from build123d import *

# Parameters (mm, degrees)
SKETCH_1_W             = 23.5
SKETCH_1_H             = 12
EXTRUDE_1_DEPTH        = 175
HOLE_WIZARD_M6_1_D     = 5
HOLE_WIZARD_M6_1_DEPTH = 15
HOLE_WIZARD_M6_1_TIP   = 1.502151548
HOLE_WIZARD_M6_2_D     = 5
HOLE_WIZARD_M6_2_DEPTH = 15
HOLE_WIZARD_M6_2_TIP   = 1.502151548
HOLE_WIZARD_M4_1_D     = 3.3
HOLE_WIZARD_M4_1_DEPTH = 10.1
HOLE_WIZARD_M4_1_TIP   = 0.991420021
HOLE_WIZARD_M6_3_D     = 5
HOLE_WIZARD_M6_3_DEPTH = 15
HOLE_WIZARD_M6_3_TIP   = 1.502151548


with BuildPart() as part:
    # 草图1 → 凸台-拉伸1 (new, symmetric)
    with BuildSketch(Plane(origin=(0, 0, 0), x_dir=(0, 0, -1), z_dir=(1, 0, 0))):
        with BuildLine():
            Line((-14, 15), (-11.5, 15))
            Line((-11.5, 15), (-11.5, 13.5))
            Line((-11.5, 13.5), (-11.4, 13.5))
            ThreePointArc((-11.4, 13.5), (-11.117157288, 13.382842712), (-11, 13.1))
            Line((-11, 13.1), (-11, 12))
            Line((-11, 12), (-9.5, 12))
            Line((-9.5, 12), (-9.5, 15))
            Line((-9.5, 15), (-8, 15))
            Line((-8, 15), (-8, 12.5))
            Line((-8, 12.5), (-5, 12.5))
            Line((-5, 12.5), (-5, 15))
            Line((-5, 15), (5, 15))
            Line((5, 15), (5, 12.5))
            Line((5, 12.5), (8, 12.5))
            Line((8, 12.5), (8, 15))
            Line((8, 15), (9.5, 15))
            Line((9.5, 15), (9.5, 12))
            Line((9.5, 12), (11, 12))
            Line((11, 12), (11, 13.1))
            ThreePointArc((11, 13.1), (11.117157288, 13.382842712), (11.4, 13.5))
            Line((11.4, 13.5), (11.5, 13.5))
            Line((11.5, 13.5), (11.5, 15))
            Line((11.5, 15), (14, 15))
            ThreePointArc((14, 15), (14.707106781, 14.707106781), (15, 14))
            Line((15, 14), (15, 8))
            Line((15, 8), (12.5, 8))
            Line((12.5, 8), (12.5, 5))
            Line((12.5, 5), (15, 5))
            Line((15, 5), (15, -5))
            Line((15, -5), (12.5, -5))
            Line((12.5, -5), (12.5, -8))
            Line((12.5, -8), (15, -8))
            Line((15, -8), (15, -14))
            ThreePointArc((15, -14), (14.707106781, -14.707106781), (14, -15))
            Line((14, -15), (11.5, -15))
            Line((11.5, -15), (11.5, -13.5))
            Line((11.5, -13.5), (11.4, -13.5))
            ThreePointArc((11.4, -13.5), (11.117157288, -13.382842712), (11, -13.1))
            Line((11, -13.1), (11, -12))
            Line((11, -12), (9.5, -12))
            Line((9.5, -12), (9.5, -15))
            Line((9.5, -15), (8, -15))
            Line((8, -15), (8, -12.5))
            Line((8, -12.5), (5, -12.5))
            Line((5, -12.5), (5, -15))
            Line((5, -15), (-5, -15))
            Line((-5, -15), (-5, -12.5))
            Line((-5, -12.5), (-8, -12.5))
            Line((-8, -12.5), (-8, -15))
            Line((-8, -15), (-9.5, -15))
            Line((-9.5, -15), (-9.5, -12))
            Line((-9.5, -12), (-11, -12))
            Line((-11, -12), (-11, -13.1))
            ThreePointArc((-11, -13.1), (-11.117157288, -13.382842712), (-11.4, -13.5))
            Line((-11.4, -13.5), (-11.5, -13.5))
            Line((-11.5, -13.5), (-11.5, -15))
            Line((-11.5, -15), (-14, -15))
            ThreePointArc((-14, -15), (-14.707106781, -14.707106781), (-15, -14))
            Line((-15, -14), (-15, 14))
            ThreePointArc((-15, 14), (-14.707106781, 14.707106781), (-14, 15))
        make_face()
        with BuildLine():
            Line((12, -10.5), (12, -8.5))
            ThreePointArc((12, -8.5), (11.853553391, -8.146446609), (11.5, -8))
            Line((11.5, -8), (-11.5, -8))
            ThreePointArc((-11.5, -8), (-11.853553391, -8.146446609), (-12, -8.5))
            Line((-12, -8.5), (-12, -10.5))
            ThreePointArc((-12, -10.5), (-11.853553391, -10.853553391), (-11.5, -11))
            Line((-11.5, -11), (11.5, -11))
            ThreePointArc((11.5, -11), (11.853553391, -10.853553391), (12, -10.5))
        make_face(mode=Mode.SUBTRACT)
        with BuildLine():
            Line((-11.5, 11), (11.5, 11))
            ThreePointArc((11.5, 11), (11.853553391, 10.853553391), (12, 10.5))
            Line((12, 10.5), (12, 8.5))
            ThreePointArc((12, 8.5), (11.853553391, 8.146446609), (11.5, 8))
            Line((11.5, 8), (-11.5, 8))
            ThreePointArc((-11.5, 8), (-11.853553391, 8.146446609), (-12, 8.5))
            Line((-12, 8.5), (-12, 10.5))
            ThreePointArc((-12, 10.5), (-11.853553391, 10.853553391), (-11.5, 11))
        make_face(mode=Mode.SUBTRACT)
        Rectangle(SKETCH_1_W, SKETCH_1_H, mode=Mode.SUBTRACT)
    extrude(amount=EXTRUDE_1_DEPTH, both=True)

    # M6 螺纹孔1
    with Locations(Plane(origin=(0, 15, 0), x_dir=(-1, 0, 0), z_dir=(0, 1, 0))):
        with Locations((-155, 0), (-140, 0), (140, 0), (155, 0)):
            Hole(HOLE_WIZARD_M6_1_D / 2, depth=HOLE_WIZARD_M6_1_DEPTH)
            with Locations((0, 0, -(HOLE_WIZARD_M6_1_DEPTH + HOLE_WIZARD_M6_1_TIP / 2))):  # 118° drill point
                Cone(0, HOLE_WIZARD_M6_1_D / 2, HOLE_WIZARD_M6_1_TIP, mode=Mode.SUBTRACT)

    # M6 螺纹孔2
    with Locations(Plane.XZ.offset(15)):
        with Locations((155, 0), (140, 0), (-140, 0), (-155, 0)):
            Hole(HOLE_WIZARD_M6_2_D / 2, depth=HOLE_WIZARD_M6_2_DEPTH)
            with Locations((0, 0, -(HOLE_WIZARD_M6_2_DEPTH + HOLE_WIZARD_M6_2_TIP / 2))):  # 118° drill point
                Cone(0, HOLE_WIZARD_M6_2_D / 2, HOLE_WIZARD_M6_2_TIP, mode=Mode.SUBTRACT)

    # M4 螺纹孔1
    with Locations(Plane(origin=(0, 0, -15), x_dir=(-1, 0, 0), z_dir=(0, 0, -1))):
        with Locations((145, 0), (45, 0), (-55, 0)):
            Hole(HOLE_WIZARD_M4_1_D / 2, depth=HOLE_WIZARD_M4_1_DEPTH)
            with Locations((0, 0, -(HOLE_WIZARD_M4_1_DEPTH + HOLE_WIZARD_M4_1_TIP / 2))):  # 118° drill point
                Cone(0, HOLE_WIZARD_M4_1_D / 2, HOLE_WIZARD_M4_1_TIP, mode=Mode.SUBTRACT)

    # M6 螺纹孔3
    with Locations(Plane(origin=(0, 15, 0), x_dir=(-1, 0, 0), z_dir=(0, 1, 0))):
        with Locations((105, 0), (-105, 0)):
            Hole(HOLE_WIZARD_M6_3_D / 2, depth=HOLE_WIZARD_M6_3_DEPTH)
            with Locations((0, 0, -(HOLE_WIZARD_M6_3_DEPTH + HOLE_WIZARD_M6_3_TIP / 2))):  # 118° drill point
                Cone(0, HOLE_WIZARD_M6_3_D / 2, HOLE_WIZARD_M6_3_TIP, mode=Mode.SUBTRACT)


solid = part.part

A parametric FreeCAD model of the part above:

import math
import FreeCAD as App
import Part
import Sketcher


def add_polygon(sketch, points):
    """Adds a closed chain of lines whose ends are joined by coincident constraints."""
    first, n = sketch.GeometryCount, len(points)
    for a, b in zip(points, points[1:] + points[:1]):
        sketch.addGeometry(Part.LineSegment(App.Vector(*a, 0), App.Vector(*b, 0)), False)
    for i in range(n):
        sketch.addConstraint(Sketcher.Constraint("Coincident", first + i, 2, first + (i + 1) % n, 1))

doc = App.newDocument("Part")
body = doc.addObject("PartDesign::Body", "Body")

sketch1 = body.newObject("Sketcher::SketchObject", "Sketch")
sketch1.AttachmentSupport = (doc.getObject("YZ_Plane"), [""])
sketch1.MapMode = "FlatFace"
sketch1.addGeometry(Part.LineSegment(App.Vector(15, 11.5, 0), App.Vector(15, 14, 0)), False)
sketch1.addGeometry(Part.ArcOfCircle(Part.Circle(App.Vector(14, 14, 0), App.Vector(0, 0, 1), 1), math.radians(0), math.radians(90)), False)
sketch1.addGeometry(Part.LineSegment(App.Vector(14, 15, 0), App.Vector(-14, 15, 0)), False)
sketch1.addGeometry(Part.ArcOfCircle(Part.Circle(App.Vector(-14, 14, 0), App.Vector(0, 0, 1), 1), math.radians(90), math.radians(180)), False)
sketch1.addGeometry(Part.LineSegment(App.Vector(-15, 14, 0), App.Vector(-15, 11.5, 0)), False)
sketch1.addGeometry(Part.LineSegment(App.Vector(-15, 11.5, 0), App.Vector(-13.5, 11.5, 0)), False)
sketch1.addGeometry(Part.LineSegment(App.Vector(-13.5, 11.5, 0), App.Vector(-13.5, 11.4, 0)), False)
sketch1.addGeometry(Part.ArcOfCircle(Part.Circle(App.Vector(-13.1, 11.4, 0), App.Vector(0, 0, 1), 0.4), math.radians(-180), math.radians(-90)), False)
sketch1.addGeometry(Part.LineSegment(App.Vector(-13.1, 11, 0), App.Vector(-12, 11, 0)), False)
sketch1.addGeometry(Part.LineSegment(App.Vector(-12, 11, 0), App.Vector(-12, 9.5, 0)), False)
sketch1.addGeometry(Part.LineSegment(App.Vector(-12, 9.5, 0), App.Vector(-15, 9.5, 0)), False)
sketch1.addGeometry(Part.LineSegment(App.Vector(-15, 9.5, 0), App.Vector(-15, 8, 0)), False)
sketch1.addGeometry(Part.LineSegment(App.Vector(-15, 8, 0), App.Vector(-12.5, 8, 0)), False)
sketch1.addGeometry(Part.LineSegment(App.Vector(-12.5, 8, 0), App.Vector(-12.5, 5, 0)), False)
sketch1.addGeometry(Part.LineSegment(App.Vector(-12.5, 5, 0), App.Vector(-15, 5, 0)), False)
sketch1.addGeometry(Part.LineSegment(App.Vector(-15, 5, 0), App.Vector(-15, -5, 0)), False)
sketch1.addGeometry(Part.LineSegment(App.Vector(-15, -5, 0), App.Vector(-12.5, -5, 0)), False)
sketch1.addGeometry(Part.LineSegment(App.Vector(-12.5, -5, 0), App.Vector(-12.5, -8, 0)), False)
sketch1.addGeometry(Part.LineSegment(App.Vector(-12.5, -8, 0), App.Vector(-15, -8, 0)), False)
sketch1.addGeometry(Part.LineSegment(App.Vector(-15, -8, 0), App.Vector(-15, -9.5, 0)), False)
sketch1.addGeometry(Part.LineSegment(App.Vector(-15, -9.5, 0), App.Vector(-12, -9.5, 0)), False)
sketch1.addGeometry(Part.LineSegment(App.Vector(-12, -9.5, 0), App.Vector(-12, -11, 0)), False)
sketch1.addGeometry(Part.LineSegment(App.Vector(-12, -11, 0), App.Vector(-13.1, -11, 0)), False)
sketch1.addGeometry(Part.ArcOfCircle(Part.Circle(App.Vector(-13.1, -11.4, 0), App.Vector(0, 0, 1), 0.4), math.radians(90), math.radians(180)), False)
sketch1.addGeometry(Part.LineSegment(App.Vector(-13.5, -11.4, 0), App.Vector(-13.5, -11.5, 0)), False)
sketch1.addGeometry(Part.LineSegment(App.Vector(-13.5, -11.5, 0), App.Vector(-15, -11.5, 0)), False)
sketch1.addGeometry(Part.LineSegment(App.Vector(-15, -11.5, 0), App.Vector(-15, -14, 0)), False)
sketch1.addGeometry(Part.ArcOfCircle(Part.Circle(App.Vector(-14, -14, 0), App.Vector(0, 0, 1), 1), math.radians(-180), math.radians(-90)), False)
sketch1.addGeometry(Part.LineSegment(App.Vector(-14, -15, 0), App.Vector(-8, -15, 0)), False)
sketch1.addGeometry(Part.LineSegment(App.Vector(-8, -15, 0), App.Vector(-8, -12.5, 0)), False)
sketch1.addGeometry(Part.LineSegment(App.Vector(-8, -12.5, 0), App.Vector(-5, -12.5, 0)), False)
sketch1.addGeometry(Part.LineSegment(App.Vector(-5, -12.5, 0), App.Vector(-5, -15, 0)), False)
sketch1.addGeometry(Part.LineSegment(App.Vector(-5, -15, 0), App.Vector(5, -15, 0)), False)
sketch1.addGeometry(Part.LineSegment(App.Vector(5, -15, 0), App.Vector(5, -12.5, 0)), False)
sketch1.addGeometry(Part.LineSegment(App.Vector(5, -12.5, 0), App.Vector(8, -12.5, 0)), False)
sketch1.addGeometry(Part.LineSegment(App.Vector(8, -12.5, 0), App.Vector(8, -15, 0)), False)
sketch1.addGeometry(Part.LineSegment(App.Vector(8, -15, 0), App.Vector(14, -15, 0)), False)
sketch1.addGeometry(Part.ArcOfCircle(Part.Circle(App.Vector(14, -14, 0), App.Vector(0, 0, 1), 1), math.radians(-90), math.radians(0)), False)
sketch1.addGeometry(Part.LineSegment(App.Vector(15, -14, 0), App.Vector(15, -11.5, 0)), False)
sketch1.addGeometry(Part.LineSegment(App.Vector(15, -11.5, 0), App.Vector(13.5, -11.5, 0)), False)
sketch1.addGeometry(Part.LineSegment(App.Vector(13.5, -11.5, 0), App.Vector(13.5, -11.4, 0)), False)
sketch1.addGeometry(Part.ArcOfCircle(Part.Circle(App.Vector(13.1, -11.4, 0), App.Vector(0, 0, 1), 0.4), math.radians(0), math.radians(90)), False)
sketch1.addGeometry(Part.LineSegment(App.Vector(13.1, -11, 0), App.Vector(12, -11, 0)), False)
sketch1.addGeometry(Part.LineSegment(App.Vector(12, -11, 0), App.Vector(12, -9.5, 0)), False)
sketch1.addGeometry(Part.LineSegment(App.Vector(12, -9.5, 0), App.Vector(15, -9.5, 0)), False)
sketch1.addGeometry(Part.LineSegment(App.Vector(15, -9.5, 0), App.Vector(15, -8, 0)), False)
sketch1.addGeometry(Part.LineSegment(App.Vector(15, -8, 0), App.Vector(12.5, -8, 0)), False)
sketch1.addGeometry(Part.LineSegment(App.Vector(12.5, -8, 0), App.Vector(12.5, -5, 0)), False)
sketch1.addGeometry(Part.LineSegment(App.Vector(12.5, -5, 0), App.Vector(15, -5, 0)), False)
sketch1.addGeometry(Part.LineSegment(App.Vector(15, -5, 0), App.Vector(15, 5, 0)), False)
sketch1.addGeometry(Part.LineSegment(App.Vector(15, 5, 0), App.Vector(12.5, 5, 0)), False)
sketch1.addGeometry(Part.LineSegment(App.Vector(12.5, 5, 0), App.Vector(12.5, 8, 0)), False)
sketch1.addGeometry(Part.LineSegment(App.Vector(12.5, 8, 0), App.Vector(15, 8, 0)), False)
sketch1.addGeometry(Part.LineSegment(App.Vector(15, 8, 0), App.Vector(15, 9.5, 0)), False)
sketch1.addGeometry(Part.LineSegment(App.Vector(15, 9.5, 0), App.Vector(12, 9.5, 0)), False)
sketch1.addGeometry(Part.LineSegment(App.Vector(12, 9.5, 0), App.Vector(12, 11, 0)), False)
sketch1.addGeometry(Part.LineSegment(App.Vector(12, 11, 0), App.Vector(13.1, 11, 0)), False)
sketch1.addGeometry(Part.ArcOfCircle(Part.Circle(App.Vector(13.1, 11.4, 0), App.Vector(0, 0, 1), 0.4), math.radians(-90), math.radians(0)), False)
sketch1.addGeometry(Part.LineSegment(App.Vector(13.5, 11.4, 0), App.Vector(13.5, 11.5, 0)), False)
sketch1.addGeometry(Part.LineSegment(App.Vector(13.5, 11.5, 0), App.Vector(15, 11.5, 0)), False)
sketch1.addGeometry(Part.ArcOfCircle(Part.Circle(App.Vector(-10.5, -11.5, 0), App.Vector(0, 0, 1), 0.5), math.radians(180), math.radians(270)), False)
sketch1.addGeometry(Part.LineSegment(App.Vector(-11, -11.5, 0), App.Vector(-11, 11.5, 0)), False)
sketch1.addGeometry(Part.ArcOfCircle(Part.Circle(App.Vector(-10.5, 11.5, 0), App.Vector(0, 0, 1), 0.5), math.radians(90), math.radians(180)), False)
sketch1.addGeometry(Part.LineSegment(App.Vector(-10.5, 12, 0), App.Vector(-8.5, 12, 0)), False)
sketch1.addGeometry(Part.ArcOfCircle(Part.Circle(App.Vector(-8.5, 11.5, 0), App.Vector(0, 0, 1), 0.5), math.radians(0), math.radians(90)), False)
sketch1.addGeometry(Part.LineSegment(App.Vector(-8, 11.5, 0), App.Vector(-8, -11.5, 0)), False)
sketch1.addGeometry(Part.ArcOfCircle(Part.Circle(App.Vector(-8.5, -11.5, 0), App.Vector(0, 0, 1), 0.5), math.radians(-90), math.radians(0)), False)
sketch1.addGeometry(Part.LineSegment(App.Vector(-8.5, -12, 0), App.Vector(-10.5, -12, 0)), False)
add_polygon(sketch1, [(-6, 11.75), (6, 11.75), (6, -11.75), (-6, -11.75)])
sketch1.addGeometry(Part.LineSegment(App.Vector(11, 11.5, 0), App.Vector(11, -11.5, 0)), False)
sketch1.addGeometry(Part.ArcOfCircle(Part.Circle(App.Vector(10.5, -11.5, 0), App.Vector(0, 0, 1), 0.5), math.radians(-90), math.radians(0)), False)
sketch1.addGeometry(Part.LineSegment(App.Vector(10.5, -12, 0), App.Vector(8.5, -12, 0)), False)
sketch1.addGeometry(Part.ArcOfCircle(Part.Circle(App.Vector(8.5, -11.5, 0), App.Vector(0, 0, 1), 0.5), math.radians(180), math.radians(270)), False)
sketch1.addGeometry(Part.LineSegment(App.Vector(8, -11.5, 0), App.Vector(8, 11.5, 0)), False)
sketch1.addGeometry(Part.ArcOfCircle(Part.Circle(App.Vector(8.5, 11.5, 0), App.Vector(0, 0, 1), 0.5), math.radians(90), math.radians(180)), False)
sketch1.addGeometry(Part.LineSegment(App.Vector(8.5, 12, 0), App.Vector(10.5, 12, 0)), False)
sketch1.addGeometry(Part.ArcOfCircle(Part.Circle(App.Vector(10.5, 11.5, 0), App.Vector(0, 0, 1), 0.5), math.radians(0), math.radians(90)), False)
sketch1.addConstraint(Sketcher.Constraint("Tangent", 0, 2, 1, 1))
sketch1.addConstraint(Sketcher.Constraint("Tangent", 1, 2, 2, 1))
sketch1.addConstraint(Sketcher.Constraint("Tangent", 2, 2, 3, 1))
sketch1.addConstraint(Sketcher.Constraint("Tangent", 3, 2, 4, 1))
sketch1.addConstraint(Sketcher.Constraint("Coincident", 4, 2, 5, 1))
sketch1.addConstraint(Sketcher.Constraint("Coincident", 5, 2, 6, 1))
sketch1.addConstraint(Sketcher.Constraint("Tangent", 6, 2, 7, 1))
sketch1.addConstraint(Sketcher.Constraint("Tangent", 7, 2, 8, 1))
sketch1.addConstraint(Sketcher.Constraint("Coincident", 8, 2, 9, 1))
sketch1.addConstraint(Sketcher.Constraint("Coincident", 9, 2, 10, 1))
sketch1.addConstraint(Sketcher.Constraint("Coincident", 10, 2, 11, 1))
sketch1.addConstraint(Sketcher.Constraint("Coincident", 11, 2, 12, 1))
sketch1.addConstraint(Sketcher.Constraint("Coincident", 12, 2, 13, 1))
sketch1.addConstraint(Sketcher.Constraint("Coincident", 13, 2, 14, 1))
sketch1.addConstraint(Sketcher.Constraint("Coincident", 14, 2, 15, 1))
sketch1.addConstraint(Sketcher.Constraint("Coincident", 15, 2, 16, 1))
sketch1.addConstraint(Sketcher.Constraint("Coincident", 16, 2, 17, 1))
sketch1.addConstraint(Sketcher.Constraint("Coincident", 17, 2, 18, 1))
sketch1.addConstraint(Sketcher.Constraint("Coincident", 18, 2, 19, 1))
sketch1.addConstraint(Sketcher.Constraint("Coincident", 19, 2, 20, 1))
sketch1.addConstraint(Sketcher.Constraint("Coincident", 20, 2, 21, 1))
sketch1.addConstraint(Sketcher.Constraint("Coincident", 21, 2, 22, 1))
sketch1.addConstraint(Sketcher.Constraint("Tangent", 22, 2, 23, 1))
sketch1.addConstraint(Sketcher.Constraint("Tangent", 23, 2, 24, 1))
sketch1.addConstraint(Sketcher.Constraint("Coincident", 24, 2, 25, 1))
sketch1.addConstraint(Sketcher.Constraint("Coincident", 25, 2, 26, 1))
sketch1.addConstraint(Sketcher.Constraint("Tangent", 26, 2, 27, 1))
sketch1.addConstraint(Sketcher.Constraint("Tangent", 27, 2, 28, 1))
sketch1.addConstraint(Sketcher.Constraint("Coincident", 28, 2, 29, 1))
sketch1.addConstraint(Sketcher.Constraint("Coincident", 29, 2, 30, 1))
sketch1.addConstraint(Sketcher.Constraint("Coincident", 30, 2, 31, 1))
sketch1.addConstraint(Sketcher.Constraint("Coincident", 31, 2, 32, 1))
sketch1.addConstraint(Sketcher.Constraint("Coincident", 32, 2, 33, 1))
sketch1.addConstraint(Sketcher.Constraint("Coincident", 33, 2, 34, 1))
sketch1.addConstraint(Sketcher.Constraint("Coincident", 34, 2, 35, 1))
sketch1.addConstraint(Sketcher.Constraint("Coincident", 35, 2, 36, 1))
sketch1.addConstraint(Sketcher.Constraint("Tangent", 36, 2, 37, 1))
sketch1.addConstraint(Sketcher.Constraint("Tangent", 37, 2, 38, 1))
sketch1.addConstraint(Sketcher.Constraint("Coincident", 38, 2, 39, 1))
sketch1.addConstraint(Sketcher.Constraint("Coincident", 39, 2, 40, 1))
sketch1.addConstraint(Sketcher.Constraint("Tangent", 40, 2, 41, 1))
sketch1.addConstraint(Sketcher.Constraint("Tangent", 41, 2, 42, 1))
sketch1.addConstraint(Sketcher.Constraint("Coincident", 42, 2, 43, 1))
sketch1.addConstraint(Sketcher.Constraint("Coincident", 43, 2, 44, 1))
sketch1.addConstraint(Sketcher.Constraint("Coincident", 44, 2, 45, 1))
sketch1.addConstraint(Sketcher.Constraint("Coincident", 45, 2, 46, 1))
sketch1.addConstraint(Sketcher.Constraint("Coincident", 46, 2, 47, 1))
sketch1.addConstraint(Sketcher.Constraint("Coincident", 47, 2, 48, 1))
sketch1.addConstraint(Sketcher.Constraint("Coincident", 48, 2, 49, 1))
sketch1.addConstraint(Sketcher.Constraint("Coincident", 49, 2, 50, 1))
sketch1.addConstraint(Sketcher.Constraint("Coincident", 50, 2, 51, 1))
sketch1.addConstraint(Sketcher.Constraint("Coincident", 51, 2, 52, 1))
sketch1.addConstraint(Sketcher.Constraint("Coincident", 52, 2, 53, 1))
sketch1.addConstraint(Sketcher.Constraint("Coincident", 53, 2, 54, 1))
sketch1.addConstraint(Sketcher.Constraint("Coincident", 54, 2, 55, 1))
sketch1.addConstraint(Sketcher.Constraint("Coincident", 55, 2, 56, 1))
sketch1.addConstraint(Sketcher.Constraint("Tangent", 56, 2, 57, 1))
sketch1.addConstraint(Sketcher.Constraint("Tangent", 57, 2, 58, 1))
sketch1.addConstraint(Sketcher.Constraint("Coincident", 58, 2, 59, 1))
sketch1.addConstraint(Sketcher.Constraint("Coincident", 59, 2, 0, 1))
sketch1.addConstraint(Sketcher.Constraint("Tangent", 60, 1, 61, 1))
sketch1.addConstraint(Sketcher.Constraint("Tangent", 61, 2, 62, 2))
sketch1.addConstraint(Sketcher.Constraint("Tangent", 62, 1, 63, 1))
sketch1.addConstraint(Sketcher.Constraint("Tangent", 63, 2, 64, 2))
sketch1.addConstraint(Sketcher.Constraint("Tangent", 64, 1, 65, 1))
sketch1.addConstraint(Sketcher.Constraint("Tangent", 65, 2, 66, 2))
sketch1.addConstraint(Sketcher.Constraint("Tangent", 66, 1, 67, 1))
sketch1.addConstraint(Sketcher.Constraint("Tangent", 67, 2, 60, 2))
sketch1.addConstraint(Sketcher.Constraint("Tangent", 72, 2, 73, 2))
sketch1.addConstraint(Sketcher.Constraint("Tangent", 73, 1, 74, 1))
sketch1.addConstraint(Sketcher.Constraint("Tangent", 74, 2, 75, 2))
sketch1.addConstraint(Sketcher.Constraint("Tangent", 75, 1, 76, 1))
sketch1.addConstraint(Sketcher.Constraint("Tangent", 76, 2, 77, 2))
sketch1.addConstraint(Sketcher.Constraint("Tangent", 77, 1, 78, 1))
sketch1.addConstraint(Sketcher.Constraint("Tangent", 78, 2, 79, 2))
sketch1.addConstraint(Sketcher.Constraint("Tangent", 79, 1, 72, 1))
sketch1.addConstraint(Sketcher.Constraint("Vertical", 0))
sketch1.addConstraint(Sketcher.Constraint("Horizontal", 2))
sketch1.addConstraint(Sketcher.Constraint("Vertical", 4))
sketch1.addConstraint(Sketcher.Constraint("Horizontal", 5))
sketch1.addConstraint(Sketcher.Constraint("Vertical", 6))
sketch1.addConstraint(Sketcher.Constraint("Horizontal", 8))
sketch1.addConstraint(Sketcher.Constraint("Vertical", 9))
sketch1.addConstraint(Sketcher.Constraint("Horizontal", 10))
sketch1.addConstraint(Sketcher.Constraint("Vertical", 11))
sketch1.addConstraint(Sketcher.Constraint("Horizontal", 12))
sketch1.addConstraint(Sketcher.Constraint("Vertical", 13))
sketch1.addConstraint(Sketcher.Constraint("Horizontal", 14))
sketch1.addConstraint(Sketcher.Constraint("Vertical", 15))
sketch1.addConstraint(Sketcher.Constraint("Horizontal", 16))
sketch1.addConstraint(Sketcher.Constraint("Vertical", 17))
sketch1.addConstraint(Sketcher.Constraint("Horizontal", 18))
sketch1.addConstraint(Sketcher.Constraint("Vertical", 19))
sketch1.addConstraint(Sketcher.Constraint("Horizontal", 20))
sketch1.addConstraint(Sketcher.Constraint("Vertical", 21))
sketch1.addConstraint(Sketcher.Constraint("Horizontal", 22))
sketch1.addConstraint(Sketcher.Constraint("Vertical", 24))
sketch1.addConstraint(Sketcher.Constraint("Horizontal", 25))
sketch1.addConstraint(Sketcher.Constraint("Vertical", 26))
sketch1.addConstraint(Sketcher.Constraint("Horizontal", 28))
sketch1.addConstraint(Sketcher.Constraint("Vertical", 29))
sketch1.addConstraint(Sketcher.Constraint("Horizontal", 30))
sketch1.addConstraint(Sketcher.Constraint("Vertical", 31))
sketch1.addConstraint(Sketcher.Constraint("Horizontal", 32))
sketch1.addConstraint(Sketcher.Constraint("Vertical", 33))
sketch1.addConstraint(Sketcher.Constraint("Horizontal", 34))
sketch1.addConstraint(Sketcher.Constraint("Vertical", 35))
sketch1.addConstraint(Sketcher.Constraint("Horizontal", 36))
sketch1.addConstraint(Sketcher.Constraint("Vertical", 38))
sketch1.addConstraint(Sketcher.Constraint("Horizontal", 39))
sketch1.addConstraint(Sketcher.Constraint("Vertical", 40))
sketch1.addConstraint(Sketcher.Constraint("Horizontal", 42))
sketch1.addConstraint(Sketcher.Constraint("Vertical", 43))
sketch1.addConstraint(Sketcher.Constraint("Horizontal", 44))
sketch1.addConstraint(Sketcher.Constraint("Vertical", 45))
sketch1.addConstraint(Sketcher.Constraint("Horizontal", 46))
sketch1.addConstraint(Sketcher.Constraint("Vertical", 47))
sketch1.addConstraint(Sketcher.Constraint("Horizontal", 48))
sketch1.addConstraint(Sketcher.Constraint("Vertical", 49))
sketch1.addConstraint(Sketcher.Constraint("Horizontal", 50))
sketch1.addConstraint(Sketcher.Constraint("Vertical", 51))
sketch1.addConstraint(Sketcher.Constraint("Horizontal", 52))
sketch1.addConstraint(Sketcher.Constraint("Vertical", 53))
sketch1.addConstraint(Sketcher.Constraint("Horizontal", 54))
sketch1.addConstraint(Sketcher.Constraint("Vertical", 55))
sketch1.addConstraint(Sketcher.Constraint("Horizontal", 56))
sketch1.addConstraint(Sketcher.Constraint("Vertical", 58))
sketch1.addConstraint(Sketcher.Constraint("Horizontal", 59))
sketch1.addConstraint(Sketcher.Constraint("Vertical", 61))
sketch1.addConstraint(Sketcher.Constraint("Horizontal", 63))
sketch1.addConstraint(Sketcher.Constraint("Vertical", 65))
sketch1.addConstraint(Sketcher.Constraint("Horizontal", 67))
sketch1.addConstraint(Sketcher.Constraint("Horizontal", 68))
sketch1.addConstraint(Sketcher.Constraint("Vertical", 69))
sketch1.addConstraint(Sketcher.Constraint("Horizontal", 70))
sketch1.addConstraint(Sketcher.Constraint("Vertical", 71))
sketch1.addConstraint(Sketcher.Constraint("Vertical", 72))
sketch1.addConstraint(Sketcher.Constraint("Horizontal", 74))
sketch1.addConstraint(Sketcher.Constraint("Vertical", 76))
sketch1.addConstraint(Sketcher.Constraint("Horizontal", 78))
sketch1.addConstraint(Sketcher.Constraint("Equal", 1, 3))
sketch1.addConstraint(Sketcher.Constraint("Equal", 7, 23))
sketch1.addConstraint(Sketcher.Constraint("Equal", 3, 27))
sketch1.addConstraint(Sketcher.Constraint("Equal", 27, 37))
sketch1.addConstraint(Sketcher.Constraint("Equal", 23, 41))
sketch1.addConstraint(Sketcher.Constraint("Equal", 41, 57))
sketch1.addConstraint(Sketcher.Constraint("Equal", 60, 62))
sketch1.addConstraint(Sketcher.Constraint("Equal", 62, 64))
sketch1.addConstraint(Sketcher.Constraint("Equal", 64, 66))
sketch1.addConstraint(Sketcher.Constraint("Equal", 66, 73))
sketch1.addConstraint(Sketcher.Constraint("Equal", 73, 75))
sketch1.addConstraint(Sketcher.Constraint("Equal", 75, 77))
sketch1.addConstraint(Sketcher.Constraint("Equal", 77, 79))
sketch1.addConstraint(Sketcher.Constraint("Symmetric", 1, 3, 27, 3, -1, 1))
sketch1.addConstraint(Sketcher.Constraint("Symmetric", 3, 3, 37, 3, -1, 1))
sketch1.addConstraint(Sketcher.Constraint("Symmetric", 7, 3, 41, 3, -1, 1))
sketch1.addConstraint(Sketcher.Constraint("Symmetric", 23, 3, 57, 3, -1, 1))
sketch1.addConstraint(Sketcher.Constraint("Symmetric", 62, 3, 73, 3, -1, 1))
sketch1.addConstraint(Sketcher.Constraint("Symmetric", 66, 3, 77, 3, -1, 1))
sketch1.addConstraint(Sketcher.Constraint("Symmetric", 9, 2, 43, 2, -1, 1))
sketch1.addConstraint(Sketcher.Constraint("Symmetric", 11, 2, 45, 2, -1, 1))
sketch1.addConstraint(Sketcher.Constraint("Symmetric", 13, 2, 47, 2, -1, 1))
sketch1.addConstraint(Sketcher.Constraint("Symmetric", 15, 2, 49, 2, -1, 1))
sketch1.addConstraint(Sketcher.Constraint("Symmetric", 17, 2, 51, 2, -1, 1))
sketch1.addConstraint(Sketcher.Constraint("Symmetric", 19, 2, 53, 2, -1, 1))
sketch1.addConstraint(Sketcher.Constraint("Symmetric", 68, 2, 70, 2, -1, 1))
sketch1.addConstraint(Sketcher.Constraint("Symmetric", 23, 3, 41, 3, -2))
sketch1.addConstraint(Sketcher.Constraint("Symmetric", 30, 2, 33, 2, -2))
sketch1.addConstraint(Sketcher.Constraint("Symmetric", 25, 2, 38, 2, -2))
sketch1.addConstraint(Sketcher.Constraint("Symmetric", 20, 2, 43, 2, -2))
sketch1.addConstraint(Sketcher.Constraint("Symmetric", 18, 2, 45, 2, -2))
sketch1.addConstraint(Sketcher.Constraint("Symmetric", 16, 2, 47, 2, -2))
sketch1.addConstraint(Sketcher.Constraint("Horizontal", 66, 3, 73, 3))
sketch1.addConstraint(Sketcher.Constraint("Horizontal", 79, 3, 4, 2))
sketch1.addConstraint(Sketcher.Constraint("Horizontal", 75, 3, 24, 2))
sketch1.addConstraint(Sketcher.Constraint("Horizontal", 28, 2, 31, 2))
sketch1.addConstraint(Sketcher.Constraint("Horizontal", 5, 2, 58, 2))
sketch1.addConstraint(Sketcher.Constraint("Vertical", 4, 2, 10, 2))
sketch1.addConstraint(Sketcher.Constraint("Vertical", 11, 2, 14, 2))
sketch1.addConstraint(Sketcher.Constraint("Vertical", 43, 2, 54, 2))
sketch1.addConstraint(Sketcher.Constraint("Vertical", 29, 2, 64, 1))
sketch1.addConstraint(Sketcher.Constraint("Vertical", 35, 2, 75, 1))
sketch1.addConstraint(Sketcher.Constraint("Equal", 20, 30))
sketch1.addConstraint(Sketcher.Constraint("Equal", 52, 0))
sketch1.addConstraint(Sketcher.Constraint("Equal", 59, 9))
sketch1.addConstraint(Sketcher.Constraint("Equal", 9, 11))
sketch1.addConstraint(Sketcher.Constraint("Equal", 54, 13))
sketch1.addConstraint(Sketcher.Constraint("Equal", 32, 15))
sketch1.addConstraint(Sketcher.Constraint("Equal", 26, 29))
sketch1.addConstraint(Sketcher.Constraint("Radius", 1, 1.0))
sketch1.addConstraint(Sketcher.Constraint("Radius", 7, 0.4))
sketch1.addConstraint(Sketcher.Constraint("Radius", 60, 0.5))
sketch1.addConstraint(Sketcher.Constraint("DistanceX", 2, 2, 2, 1, 28.0))
sketch1.addConstraint(Sketcher.Constraint("DistanceX", 10, 2, 10, 1, 3.0))
sketch1.addConstraint(Sketcher.Constraint("DistanceX", 28, 1, 28, 2, 6.0))
sketch1.addConstraint(Sketcher.Constraint("DistanceX", 63, 1, 63, 2, 2.0))
sketch1.addConstraint(Sketcher.Constraint("DistanceX", 68, 1, 68, 2, 12.0))
sketch1.addConstraint(Sketcher.Constraint("DistanceY", 61, 1, 61, 2, 23.0))
sketch1.addConstraint(Sketcher.Constraint("DistanceX", 5, 1, 5, 2, 1.5))
sketch1.addConstraint(Sketcher.Constraint("DistanceX", 12, 1, 12, 2, 2.5))
sketch1.addConstraint(Sketcher.Constraint("DistanceY", 69, 2, 69, 1, 23.5))
pad1 = body.newObject("PartDesign::Pad", "Pad")
pad1.Profile = sketch1
pad1.Length = 350
pad1.Midplane = True

sketch2 = body.newObject("Sketcher::SketchObject", "Sketch001")
sketch2.AttachmentSupport = (doc.getObject("XZ_Plane"), [""])
sketch2.MapMode = "FlatFace"
sketch2.AttachmentOffset = App.Placement(App.Vector(0, 0, -15), App.Rotation())
sketch2.addGeometry(Part.Circle(App.Vector(155, 0, 0), App.Vector(0, 0, 1), 2.5), False)
sketch2.addGeometry(Part.Circle(App.Vector(140, 0, 0), App.Vector(0, 0, 1), 2.5), False)
sketch2.addGeometry(Part.Circle(App.Vector(-140, 0, 0), App.Vector(0, 0, 1), 2.5), False)
sketch2.addGeometry(Part.Circle(App.Vector(-155, 0, 0), App.Vector(0, 0, 1), 2.5), False)
sketch2.addConstraint(Sketcher.Constraint("Equal", 0, 1))
sketch2.addConstraint(Sketcher.Constraint("Equal", 1, 2))
sketch2.addConstraint(Sketcher.Constraint("Equal", 2, 3))
sketch2.addConstraint(Sketcher.Constraint("Symmetric", 1, 3, 2, 3, -1, 1))
sketch2.addConstraint(Sketcher.Constraint("Symmetric", 0, 3, 3, 3, -1, 1))
sketch2.addConstraint(Sketcher.Constraint("PointOnObject", 0, 3, -1))
sketch2.addConstraint(Sketcher.Constraint("PointOnObject", 1, 3, -1))
sketch2.addConstraint(Sketcher.Constraint("Diameter", 0, 5.0))
sketch2.addConstraint(Sketcher.Constraint("DistanceX", -1, 1, 0, 3, 155.0))
sketch2.addConstraint(Sketcher.Constraint("DistanceX", -1, 1, 1, 3, 140.0))
doc.recompute()
hole = body.newObject("PartDesign::Hole", "Hole")
hole.Profile = sketch2
hole.ThreadType = "None"
hole.Diameter = 5
hole.DepthType = "Dimension"
hole.Depth = 15
hole.DrillPoint = "Angled"
hole.DrillPointAngle = 118
hole.Reversed = True

sketch3 = body.newObject("Sketcher::SketchObject", "Sketch002")
sketch3.AttachmentSupport = (doc.getObject("XZ_Plane"), [""])
sketch3.MapMode = "FlatFace"
sketch3.AttachmentOffset = App.Placement(App.Vector(0, 0, 15), App.Rotation())
sketch3.addGeometry(Part.Circle(App.Vector(155, 0, 0), App.Vector(0, 0, 1), 2.5), False)
sketch3.addGeometry(Part.Circle(App.Vector(140, 0, 0), App.Vector(0, 0, 1), 2.5), False)
sketch3.addGeometry(Part.Circle(App.Vector(-140, 0, 0), App.Vector(0, 0, 1), 2.5), False)
sketch3.addGeometry(Part.Circle(App.Vector(-155, 0, 0), App.Vector(0, 0, 1), 2.5), False)
sketch3.addConstraint(Sketcher.Constraint("Equal", 0, 1))
sketch3.addConstraint(Sketcher.Constraint("Equal", 1, 2))
sketch3.addConstraint(Sketcher.Constraint("Equal", 2, 3))
sketch3.addConstraint(Sketcher.Constraint("Symmetric", 1, 3, 2, 3, -1, 1))
sketch3.addConstraint(Sketcher.Constraint("Symmetric", 0, 3, 3, 3, -1, 1))
sketch3.addConstraint(Sketcher.Constraint("PointOnObject", 0, 3, -1))
sketch3.addConstraint(Sketcher.Constraint("PointOnObject", 1, 3, -1))
sketch3.addConstraint(Sketcher.Constraint("Diameter", 0, 5.0))
sketch3.addConstraint(Sketcher.Constraint("DistanceX", -1, 1, 0, 3, 155.0))
sketch3.addConstraint(Sketcher.Constraint("DistanceX", -1, 1, 1, 3, 140.0))
doc.recompute()
hole2 = body.newObject("PartDesign::Hole", "Hole001")
hole2.Profile = sketch3
hole2.ThreadType = "None"
hole2.Diameter = 5
hole2.DepthType = "Dimension"
hole2.Depth = 15
hole2.DrillPoint = "Angled"
hole2.DrillPointAngle = 118

sketch4 = body.newObject("Sketcher::SketchObject", "Sketch003")
sketch4.AttachmentSupport = (doc.getObject("XY_Plane"), [""])
sketch4.MapMode = "FlatFace"
sketch4.AttachmentOffset = App.Placement(App.Vector(0, 0, -15), App.Rotation())
sketch4.addGeometry(Part.Circle(App.Vector(-145, 0, 0), App.Vector(0, 0, 1), 1.65), False)
sketch4.addGeometry(Part.Circle(App.Vector(-45, 0, 0), App.Vector(0, 0, 1), 1.65), False)
sketch4.addGeometry(Part.Circle(App.Vector(55, 0, 0), App.Vector(0, 0, 1), 1.65), False)
sketch4.addConstraint(Sketcher.Constraint("Equal", 0, 1))
sketch4.addConstraint(Sketcher.Constraint("Equal", 1, 2))
sketch4.addConstraint(Sketcher.Constraint("PointOnObject", 0, 3, -1))
sketch4.addConstraint(Sketcher.Constraint("PointOnObject", 1, 3, -1))
sketch4.addConstraint(Sketcher.Constraint("PointOnObject", 2, 3, -1))
sketch4.addConstraint(Sketcher.Constraint("Diameter", 0, 3.3))
sketch4.addConstraint(Sketcher.Constraint("DistanceX", 0, 3, -1, 1, 145.0))
sketch4.addConstraint(Sketcher.Constraint("DistanceX", 1, 3, -1, 1, 45.0))
sketch4.addConstraint(Sketcher.Constraint("DistanceX", -1, 1, 2, 3, 55.0))
doc.recompute()
hole3 = body.newObject("PartDesign::Hole", "Hole002")
hole3.Profile = sketch4
hole3.ThreadType = "None"
hole3.Diameter = 3.3
hole3.DepthType = "Dimension"
hole3.Depth = 10.1
hole3.DrillPoint = "Angled"
hole3.DrillPointAngle = 118
hole3.Reversed = True

sketch5 = body.newObject("Sketcher::SketchObject", "Sketch004")
sketch5.AttachmentSupport = (doc.getObject("XZ_Plane"), [""])
sketch5.MapMode = "FlatFace"
sketch5.AttachmentOffset = App.Placement(App.Vector(0, 0, -15), App.Rotation())
sketch5.addGeometry(Part.Circle(App.Vector(-105, 0, 0), App.Vector(0, 0, 1), 2.5), False)
sketch5.addGeometry(Part.Circle(App.Vector(105, 0, 0), App.Vector(0, 0, 1), 2.5), False)
sketch5.addConstraint(Sketcher.Constraint("Equal", 0, 1))
sketch5.addConstraint(Sketcher.Constraint("Symmetric", 0, 3, 1, 3, -1, 1))
sketch5.addConstraint(Sketcher.Constraint("PointOnObject", 0, 3, -1))
sketch5.addConstraint(Sketcher.Constraint("Diameter", 0, 5.0))
sketch5.addConstraint(Sketcher.Constraint("DistanceX", 0, 3, -1, 1, 105.0))
doc.recompute()
hole4 = body.newObject("PartDesign::Hole", "Hole003")
hole4.Profile = sketch5
hole4.ThreadType = "None"
hole4.Diameter = 5
hole4.DepthType = "Dimension"
hole4.Depth = 15
hole4.DrillPoint = "Angled"
hole4.DrillPointAngle = 118
hole4.Reversed = True

doc.recompute()
